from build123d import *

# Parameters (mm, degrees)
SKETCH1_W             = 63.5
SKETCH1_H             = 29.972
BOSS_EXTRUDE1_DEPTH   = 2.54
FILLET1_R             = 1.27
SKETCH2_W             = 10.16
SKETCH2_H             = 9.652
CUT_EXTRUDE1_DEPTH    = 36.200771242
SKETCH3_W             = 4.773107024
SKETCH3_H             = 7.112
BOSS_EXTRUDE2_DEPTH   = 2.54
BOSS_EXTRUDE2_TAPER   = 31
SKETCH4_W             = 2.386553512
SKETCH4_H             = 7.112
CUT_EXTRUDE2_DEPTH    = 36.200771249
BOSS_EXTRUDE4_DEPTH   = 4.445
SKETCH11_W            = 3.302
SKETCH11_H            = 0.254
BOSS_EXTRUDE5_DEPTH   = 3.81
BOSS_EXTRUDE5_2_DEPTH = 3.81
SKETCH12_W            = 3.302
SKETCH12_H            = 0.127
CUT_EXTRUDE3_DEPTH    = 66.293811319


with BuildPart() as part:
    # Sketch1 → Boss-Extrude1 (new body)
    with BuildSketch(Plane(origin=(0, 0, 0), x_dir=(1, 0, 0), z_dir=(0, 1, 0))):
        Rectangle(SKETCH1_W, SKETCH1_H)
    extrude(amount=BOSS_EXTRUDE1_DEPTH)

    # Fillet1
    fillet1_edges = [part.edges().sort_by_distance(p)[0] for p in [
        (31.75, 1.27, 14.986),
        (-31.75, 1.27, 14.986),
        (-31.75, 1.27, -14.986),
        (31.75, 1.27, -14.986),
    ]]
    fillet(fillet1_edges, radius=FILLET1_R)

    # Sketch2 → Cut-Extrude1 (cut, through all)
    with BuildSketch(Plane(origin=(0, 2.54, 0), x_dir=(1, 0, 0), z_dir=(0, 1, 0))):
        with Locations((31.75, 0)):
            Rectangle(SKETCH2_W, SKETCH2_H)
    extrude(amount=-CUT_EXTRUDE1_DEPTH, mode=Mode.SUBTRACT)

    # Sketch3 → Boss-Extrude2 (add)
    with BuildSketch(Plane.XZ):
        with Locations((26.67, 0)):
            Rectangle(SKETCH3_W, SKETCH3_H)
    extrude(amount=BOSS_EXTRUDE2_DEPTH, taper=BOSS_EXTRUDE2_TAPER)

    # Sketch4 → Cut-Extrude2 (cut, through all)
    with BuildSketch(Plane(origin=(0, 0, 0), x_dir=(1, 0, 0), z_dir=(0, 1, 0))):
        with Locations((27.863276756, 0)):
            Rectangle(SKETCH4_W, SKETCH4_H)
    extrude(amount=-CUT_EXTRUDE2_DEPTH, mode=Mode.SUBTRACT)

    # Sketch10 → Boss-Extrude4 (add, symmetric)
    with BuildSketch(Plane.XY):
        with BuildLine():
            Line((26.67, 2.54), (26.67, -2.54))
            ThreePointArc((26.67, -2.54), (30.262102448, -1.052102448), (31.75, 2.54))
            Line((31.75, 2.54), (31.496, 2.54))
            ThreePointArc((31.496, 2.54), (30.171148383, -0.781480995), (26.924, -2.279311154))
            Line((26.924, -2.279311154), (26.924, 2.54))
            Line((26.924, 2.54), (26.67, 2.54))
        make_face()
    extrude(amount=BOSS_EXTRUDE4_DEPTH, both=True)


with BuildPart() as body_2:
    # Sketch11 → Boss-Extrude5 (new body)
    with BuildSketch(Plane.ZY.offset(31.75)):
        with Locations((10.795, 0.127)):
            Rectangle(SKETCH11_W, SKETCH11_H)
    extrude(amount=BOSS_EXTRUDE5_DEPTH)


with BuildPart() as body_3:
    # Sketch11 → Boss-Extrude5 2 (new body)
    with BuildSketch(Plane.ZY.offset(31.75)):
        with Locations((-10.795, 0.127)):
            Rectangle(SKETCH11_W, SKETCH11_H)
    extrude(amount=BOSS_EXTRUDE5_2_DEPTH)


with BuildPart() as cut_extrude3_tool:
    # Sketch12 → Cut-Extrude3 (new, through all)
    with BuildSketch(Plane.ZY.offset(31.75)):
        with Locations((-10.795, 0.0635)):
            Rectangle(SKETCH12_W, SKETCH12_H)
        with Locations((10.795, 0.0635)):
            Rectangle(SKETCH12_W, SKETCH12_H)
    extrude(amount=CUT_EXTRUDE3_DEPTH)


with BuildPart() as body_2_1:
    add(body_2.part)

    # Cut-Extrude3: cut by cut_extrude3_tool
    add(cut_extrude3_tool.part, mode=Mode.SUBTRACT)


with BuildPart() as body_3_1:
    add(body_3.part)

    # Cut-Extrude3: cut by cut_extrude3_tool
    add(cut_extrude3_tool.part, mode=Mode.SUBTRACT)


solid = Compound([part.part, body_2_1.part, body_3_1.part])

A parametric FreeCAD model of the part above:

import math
import FreeCAD as App
import Part
import Sketcher
from FreeCAD import Vector
Q = App.Units.Quantity


def edges_at(feature, points):
    """Names of the edges that pass closest to the given points."""
    edges = feature.Shape.Edges
    near = lambda p: min(range(len(edges)), key=lambda i: edges[i].distToShape(Part.Vertex(*p))[0])
    return sorted({f"Edge{near(p) + 1}" for p in points})


def add_polygon(sketch, points):
    """Adds a closed chain of lines whose ends are joined by coincident constraints."""
    first, n = sketch.GeometryCount, len(points)
    for a, b in zip(points, points[1:] + points[:1]):
        sketch.addGeometry(Part.LineSegment(App.Vector(*a, 0), App.Vector(*b, 0)), False)
    for i in range(n):
        sketch.addConstraint(Sketcher.Constraint("Coincident", first + i, 2, first + (i + 1) % n, 1))

doc = App.newDocument("Part")
body = doc.addObject("PartDesign::Body", "Body")

sketch1 = body.newObject("Sketcher::SketchObject", "Sketch")
sketch1.AttachmentSupport = (doc.getObject("XZ_Plane"), [""])
sketch1.MapMode = "FlatFace"
add_polygon(sketch1, [(-32, -15), (-32, 15), (32, 15), (32, -15)])
sketch1.addConstraint([
    Sketcher.Constraint("Vertical", 0),
    Sketcher.Constraint("Horizontal", 1),
    Sketcher.Constraint("Vertical", 2),
    Sketcher.Constraint("Horizontal", 3),
    Sketcher.Constraint("Symmetric", 0, 2, 2, 2, -1, 1),
    Sketcher.Constraint("DistanceX", 1, 1, 1, 2, Q("2.5 in")),
    Sketcher.Constraint("DistanceY", 0, 1, 0, 2, Q("1.18 in")),
])
pad1 = body.newObject("PartDesign::Pad", "Pad")
pad1.Profile = sketch1
pad1.Length = Q("0.1 in")
pad1.Reversed = True
doc.recompute()

fillet = body.newObject("PartDesign::Fillet", "Fillet")
fillet.Base = (pad1, edges_at(pad1, [
    (31.75, 1.27, 14.986),
    (-31.75, 1.27, 14.986),
    (-31.75, 1.27, -14.986),
    (31.75, 1.27, -14.986),
]))
fillet.Radius = Q("0.05 in")

sketch2 = body.newObject("Sketcher::SketchObject", "Sketch001")
sketch2.AttachmentSupport = (doc.getObject("XZ_Plane"), [""])
sketch2.MapMode = "FlatFace"
sketch2.AttachmentOffset = App.Placement(Vector(0, 0, -0.1 * 25.4), App.Rotation())
add_polygon(sketch2, [(27, -5), (27, 5), (37, 5), (37, -5)])
sketch2.addConstraint([
    Sketcher.Constraint("Vertical", 0),
    Sketcher.Constraint("Horizontal", 1),
    Sketcher.Constraint("Vertical", 2),
    Sketcher.Constraint("Horizontal", 3),
    Sketcher.Constraint("DistanceX", 1, 1, 1, 2, Q("0.4 in")),
    Sketcher.Constraint("DistanceY", 0, 1, 0, 2, Q("0.38 in")),
    Sketcher.Constraint("DistanceX", -1, 1, 0, 2, Q("1.05 in")),
    Sketcher.Constraint("DistanceY", -1, 1, 0, 2, Q("0.19 in")),
])
pocket1 = body.newObject("PartDesign::Pocket", "Pocket")
pocket1.Profile = sketch2
pocket1.Type = "ThroughAll"
pocket1.Reversed = True

sketch3 = body.newObject("Sketcher::SketchObject", "Sketch002")
sketch3.AttachmentSupport = (doc.getObject("XZ_Plane"), [""])
sketch3.MapMode = "FlatFace"
add_polygon(sketch3, [(24.3, 3.6), (24.3, -3.6), (29.1, -3.6), (29.1, 3.6)])
sketch3.addConstraint([
    Sketcher.Constraint("Vertical", 0),
    Sketcher.Constraint("Horizontal", 1),
    Sketcher.Constraint("Vertical", 2),
    Sketcher.Constraint("Horizontal", 3),
    Sketcher.Constraint("DistanceY", 0, 2, 0, 1, Q("0.28 in")),
    Sketcher.Constraint("DistanceY", 0, 2, -1, 1, Q("0.14 in")),
    Sketcher.Constraint("DistanceX", 1, 1, 1, 2, Q("4.773107 mm")),
    Sketcher.Constraint("DistanceX", -1, 1, 0, 2, Q("24.283446 mm")),
])
pad2 = body.newObject("PartDesign::Pad", "Pad001")
pad2.Profile = sketch3
pad2.Length = Q("0.1 in")
pad2.TaperAngle = -31

sketch4 = body.newObject("Sketcher::SketchObject", "Sketch003")
sketch4.AttachmentSupport = (doc.getObject("XZ_Plane"), [""])
sketch4.MapMode = "FlatFace"
add_polygon(sketch4, [(26.7, -3.6), (26.7, 3.6), (29.1, 3.6), (29.1, -3.6)])
sketch4.addConstraint([
    Sketcher.Constraint("Vertical", 0),
    Sketcher.Constraint("Horizontal", 1),
    Sketcher.Constraint("Vertical", 2),
    Sketcher.Constraint("Horizontal", 3),
    Sketcher.Constraint("DistanceY", 0, 1, 0, 2, Q("0.28 in")),
    Sketcher.Constraint("DistanceX", -1, 1, 0, 2, Q("1.05 in")),
    Sketcher.Constraint("DistanceY", -1, 1, 0, 2, Q("0.14 in")),
    Sketcher.Constraint("DistanceX", 1, 1, 1, 2, Q("2.386554 mm")),
])
pocket2 = body.newObject("PartDesign::Pocket", "Pocket001")
pocket2.Profile = sketch4
pocket2.Type = "ThroughAll"
pocket2.Reversed = True

sketch5 = body.newObject("Sketcher::SketchObject", "Sketch004")
sketch5.AttachmentSupport = (doc.getObject("XY_Plane"), [""])
sketch5.MapMode = "FlatFace"
sketch5.addGeometry([
    Part.LineSegment(Vector(26.67, 2.54, 0), Vector(26.67, -2.54, 0)),
    Part.ArcOfCircle(Part.Circle(Vector(26.67, 2.54, 0), Vector(0, 0, 1), 5.08), math.radians(-90), math.radians(0)),
    Part.LineSegment(Vector(31.75, 2.54, 0), Vector(31.5, 2.54, 0)),
    Part.ArcOfCircle(Part.Circle(Vector(26.67, 2.54, 0), Vector(0, 0, 1), 4.83), math.radians(-87), math.radians(0)),
    Part.LineSegment(Vector(26.92, -2.28, 0), Vector(26.92, 2.54, 0)),
    Part.LineSegment(Vector(26.92, 2.54, 0), Vector(26.67, 2.54, 0)),
], False)
sketch5.addConstraint([
    Sketcher.Constraint("Coincident", 0, 2, 1, 1),
    Sketcher.Constraint("Coincident", 1, 2, 2, 1),
    Sketcher.Constraint("Coincident", 2, 2, 3, 2),
    Sketcher.Constraint("Coincident", 3, 1, 4, 1),
    Sketcher.Constraint("Coincident", 4, 2, 5, 1),
    Sketcher.Constraint("Coincident", 5, 2, 0, 1),
    Sketcher.Constraint("Vertical", 0),
    Sketcher.Constraint("Horizontal", 2),
    Sketcher.Constraint("Vertical", 4),
    Sketcher.Constraint("Horizontal", 5),
    Sketcher.Constraint("Coincident", 3, 3, 1, 3),
    Sketcher.Constraint("Coincident", 5, 2, 1, 3),
    Sketcher.Constraint("Horizontal", 3, 3, 1, 2),
    Sketcher.Constraint("Equal", 2, 5),
    Sketcher.Constraint("Radius", 1, Q("0.2 in")),
    Sketcher.Constraint("Radius", 3, Q("0.19 in")),
    Sketcher.Constraint("DistanceY", -1, 1, 1, 3, Q("0.1 in")),
    Sketcher.Constraint("DistanceX", -1, 1, 1, 3, Q("1.05 in")),
])
pad3 = body.newObject("PartDesign::Pad", "Pad002")
pad3.Profile = sketch5
pad3.Length = Q("0.35 in")
pad3.Midplane = True
body2 = doc.addObject("PartDesign::Body", "Body001")

sketch6 = body2.newObject("Sketcher::SketchObject", "Sketch005")
sketch6.AttachmentSupport = (doc.getObject("YZ_Plane001"), [""])
sketch6.MapMode = "FlatFace"
sketch6.AttachmentOffset = App.Placement(Vector(0, 0, -1.25 * 25.4), App.Rotation())
add_polygon(sketch6, [(0.25, 9.14), (0, 9.14), (0, 12.45), (0.25, 12.45)])
sketch6.addConstraint([
    Sketcher.Constraint("Horizontal", 0),
    Sketcher.Constraint("Vertical", 1),
    Sketcher.Constraint("Horizontal", 2),
    Sketcher.Constraint("Vertical", 3),
    Sketcher.Constraint("PointOnObject", 0, 2, -2),
    Sketcher.Constraint("DistanceX", 0, 2, 0, 1, Q("0.01 in")),
    Sketcher.Constraint("DistanceY", 1, 1, 1, 2, Q("0.13 in")),
    Sketcher.Constraint("DistanceY", -1, 1, 0, 2, Q("0.36 in")),
])
pad4 = body2.newObject("PartDesign::Pad", "Pad003")
pad4.Profile = sketch6
pad4.Length = Q("0.15 in")
pad4.Reversed = True
body3 = doc.addObject("PartDesign::Body", "Body002")

sketch7 = body3.newObject("Sketcher::SketchObject", "Sketch006")
sketch7.AttachmentSupport = (doc.getObject("YZ_Plane002"), [""])
sketch7.MapMode = "FlatFace"
sketch7.AttachmentOffset = App.Placement(Vector(0, 0, -1.25 * 25.4), App.Rotation())
add_polygon(sketch7, [(0.25, -12.45), (0, -12.45), (0, -9.14), (0.25, -9.14)])
sketch7.addConstraint([
    Sketcher.Constraint("Horizontal", 0),
    Sketcher.Constraint("Vertical", 1),
    Sketcher.Constraint("Horizontal", 2),
    Sketcher.Constraint("Vertical", 3),
    Sketcher.Constraint("PointOnObject", 0, 2, -2),
    Sketcher.Constraint("DistanceX", 0, 2, 0, 1, Q("0.01 in")),
    Sketcher.Constraint("DistanceY", 1, 1, 1, 2, Q("0.13 in")),
    Sketcher.Constraint("DistanceY", 0, 2, -1, 1, Q("0.49 in")),
])
pad5 = body3.newObject("PartDesign::Pad", "Pad004")
pad5.Profile = sketch7
pad5.Length = Q("0.15 in")
pad5.Reversed = True
body4 = doc.addObject("PartDesign::Body", "Body003")
body4.AllowCompound = True

sketch8 = body4.newObject("Sketcher::SketchObject", "Sketch007")
sketch8.AttachmentSupport = (doc.getObject("YZ_Plane003"), [""])
sketch8.MapMode = "FlatFace"
sketch8.AttachmentOffset = App.Placement(Vector(0, 0, -1.25 * 25.4), App.Rotation())
add_polygon(sketch8, [(0.13, -12.45), (0, -12.45), (0, -9.14), (0.13, -9.14)])
add_polygon(sketch8, [(0.13, 9.14), (0, 9.14), (0, 12.45), (0.13, 12.45)])
sketch8.addConstraint([
    Sketcher.Constraint("Horizontal", 0),
    Sketcher.Constraint("Vertical", 1),
    Sketcher.Constraint("Horizontal", 2),
    Sketcher.Constraint("Vertical", 3),
    Sketcher.Constraint("Horizontal", 4),
    Sketcher.Constraint("Vertical", 5),
    Sketcher.Constraint("Horizontal", 6),
    Sketcher.Constraint("Vertical", 7),
    Sketcher.Constraint("Symmetric", 1, 2, 4, 2, -1, 1),
    Sketcher.Constraint("Symmetric", 0, 2, 5, 2, -1),
    Sketcher.Constraint("Vertical", 3, 2, 6, 2),
    Sketcher.Constraint("DistanceY", 1, 1, 1, 2, Q("0.13 in")),
    Sketcher.Constraint("DistanceX", 0, 2, 0, 1, Q("0.005 in")),
    Sketcher.Constraint("DistanceY", 0, 2, -1, 1, Q("0.49 in")),
])
pad6 = body4.newObject("PartDesign::Pad", "Pad005")
pad6.Profile = sketch8
pad6.Length = 66.293811
pad6.Reversed = True
doc.recompute()

body5 = doc.addObject("PartDesign::Body", "Body004")
body5.BaseFeature = body4
boolean = body2.newObject("PartDesign::Boolean", "Boolean")
boolean.Type = "Cut"
boolean.addObjects([body5])
doc.recompute()

boolean2 = body3.newObject("PartDesign::Boolean", "Boolean001")
boolean2.Type = "Cut"
boolean2.addObjects([body4])

doc.recompute()
